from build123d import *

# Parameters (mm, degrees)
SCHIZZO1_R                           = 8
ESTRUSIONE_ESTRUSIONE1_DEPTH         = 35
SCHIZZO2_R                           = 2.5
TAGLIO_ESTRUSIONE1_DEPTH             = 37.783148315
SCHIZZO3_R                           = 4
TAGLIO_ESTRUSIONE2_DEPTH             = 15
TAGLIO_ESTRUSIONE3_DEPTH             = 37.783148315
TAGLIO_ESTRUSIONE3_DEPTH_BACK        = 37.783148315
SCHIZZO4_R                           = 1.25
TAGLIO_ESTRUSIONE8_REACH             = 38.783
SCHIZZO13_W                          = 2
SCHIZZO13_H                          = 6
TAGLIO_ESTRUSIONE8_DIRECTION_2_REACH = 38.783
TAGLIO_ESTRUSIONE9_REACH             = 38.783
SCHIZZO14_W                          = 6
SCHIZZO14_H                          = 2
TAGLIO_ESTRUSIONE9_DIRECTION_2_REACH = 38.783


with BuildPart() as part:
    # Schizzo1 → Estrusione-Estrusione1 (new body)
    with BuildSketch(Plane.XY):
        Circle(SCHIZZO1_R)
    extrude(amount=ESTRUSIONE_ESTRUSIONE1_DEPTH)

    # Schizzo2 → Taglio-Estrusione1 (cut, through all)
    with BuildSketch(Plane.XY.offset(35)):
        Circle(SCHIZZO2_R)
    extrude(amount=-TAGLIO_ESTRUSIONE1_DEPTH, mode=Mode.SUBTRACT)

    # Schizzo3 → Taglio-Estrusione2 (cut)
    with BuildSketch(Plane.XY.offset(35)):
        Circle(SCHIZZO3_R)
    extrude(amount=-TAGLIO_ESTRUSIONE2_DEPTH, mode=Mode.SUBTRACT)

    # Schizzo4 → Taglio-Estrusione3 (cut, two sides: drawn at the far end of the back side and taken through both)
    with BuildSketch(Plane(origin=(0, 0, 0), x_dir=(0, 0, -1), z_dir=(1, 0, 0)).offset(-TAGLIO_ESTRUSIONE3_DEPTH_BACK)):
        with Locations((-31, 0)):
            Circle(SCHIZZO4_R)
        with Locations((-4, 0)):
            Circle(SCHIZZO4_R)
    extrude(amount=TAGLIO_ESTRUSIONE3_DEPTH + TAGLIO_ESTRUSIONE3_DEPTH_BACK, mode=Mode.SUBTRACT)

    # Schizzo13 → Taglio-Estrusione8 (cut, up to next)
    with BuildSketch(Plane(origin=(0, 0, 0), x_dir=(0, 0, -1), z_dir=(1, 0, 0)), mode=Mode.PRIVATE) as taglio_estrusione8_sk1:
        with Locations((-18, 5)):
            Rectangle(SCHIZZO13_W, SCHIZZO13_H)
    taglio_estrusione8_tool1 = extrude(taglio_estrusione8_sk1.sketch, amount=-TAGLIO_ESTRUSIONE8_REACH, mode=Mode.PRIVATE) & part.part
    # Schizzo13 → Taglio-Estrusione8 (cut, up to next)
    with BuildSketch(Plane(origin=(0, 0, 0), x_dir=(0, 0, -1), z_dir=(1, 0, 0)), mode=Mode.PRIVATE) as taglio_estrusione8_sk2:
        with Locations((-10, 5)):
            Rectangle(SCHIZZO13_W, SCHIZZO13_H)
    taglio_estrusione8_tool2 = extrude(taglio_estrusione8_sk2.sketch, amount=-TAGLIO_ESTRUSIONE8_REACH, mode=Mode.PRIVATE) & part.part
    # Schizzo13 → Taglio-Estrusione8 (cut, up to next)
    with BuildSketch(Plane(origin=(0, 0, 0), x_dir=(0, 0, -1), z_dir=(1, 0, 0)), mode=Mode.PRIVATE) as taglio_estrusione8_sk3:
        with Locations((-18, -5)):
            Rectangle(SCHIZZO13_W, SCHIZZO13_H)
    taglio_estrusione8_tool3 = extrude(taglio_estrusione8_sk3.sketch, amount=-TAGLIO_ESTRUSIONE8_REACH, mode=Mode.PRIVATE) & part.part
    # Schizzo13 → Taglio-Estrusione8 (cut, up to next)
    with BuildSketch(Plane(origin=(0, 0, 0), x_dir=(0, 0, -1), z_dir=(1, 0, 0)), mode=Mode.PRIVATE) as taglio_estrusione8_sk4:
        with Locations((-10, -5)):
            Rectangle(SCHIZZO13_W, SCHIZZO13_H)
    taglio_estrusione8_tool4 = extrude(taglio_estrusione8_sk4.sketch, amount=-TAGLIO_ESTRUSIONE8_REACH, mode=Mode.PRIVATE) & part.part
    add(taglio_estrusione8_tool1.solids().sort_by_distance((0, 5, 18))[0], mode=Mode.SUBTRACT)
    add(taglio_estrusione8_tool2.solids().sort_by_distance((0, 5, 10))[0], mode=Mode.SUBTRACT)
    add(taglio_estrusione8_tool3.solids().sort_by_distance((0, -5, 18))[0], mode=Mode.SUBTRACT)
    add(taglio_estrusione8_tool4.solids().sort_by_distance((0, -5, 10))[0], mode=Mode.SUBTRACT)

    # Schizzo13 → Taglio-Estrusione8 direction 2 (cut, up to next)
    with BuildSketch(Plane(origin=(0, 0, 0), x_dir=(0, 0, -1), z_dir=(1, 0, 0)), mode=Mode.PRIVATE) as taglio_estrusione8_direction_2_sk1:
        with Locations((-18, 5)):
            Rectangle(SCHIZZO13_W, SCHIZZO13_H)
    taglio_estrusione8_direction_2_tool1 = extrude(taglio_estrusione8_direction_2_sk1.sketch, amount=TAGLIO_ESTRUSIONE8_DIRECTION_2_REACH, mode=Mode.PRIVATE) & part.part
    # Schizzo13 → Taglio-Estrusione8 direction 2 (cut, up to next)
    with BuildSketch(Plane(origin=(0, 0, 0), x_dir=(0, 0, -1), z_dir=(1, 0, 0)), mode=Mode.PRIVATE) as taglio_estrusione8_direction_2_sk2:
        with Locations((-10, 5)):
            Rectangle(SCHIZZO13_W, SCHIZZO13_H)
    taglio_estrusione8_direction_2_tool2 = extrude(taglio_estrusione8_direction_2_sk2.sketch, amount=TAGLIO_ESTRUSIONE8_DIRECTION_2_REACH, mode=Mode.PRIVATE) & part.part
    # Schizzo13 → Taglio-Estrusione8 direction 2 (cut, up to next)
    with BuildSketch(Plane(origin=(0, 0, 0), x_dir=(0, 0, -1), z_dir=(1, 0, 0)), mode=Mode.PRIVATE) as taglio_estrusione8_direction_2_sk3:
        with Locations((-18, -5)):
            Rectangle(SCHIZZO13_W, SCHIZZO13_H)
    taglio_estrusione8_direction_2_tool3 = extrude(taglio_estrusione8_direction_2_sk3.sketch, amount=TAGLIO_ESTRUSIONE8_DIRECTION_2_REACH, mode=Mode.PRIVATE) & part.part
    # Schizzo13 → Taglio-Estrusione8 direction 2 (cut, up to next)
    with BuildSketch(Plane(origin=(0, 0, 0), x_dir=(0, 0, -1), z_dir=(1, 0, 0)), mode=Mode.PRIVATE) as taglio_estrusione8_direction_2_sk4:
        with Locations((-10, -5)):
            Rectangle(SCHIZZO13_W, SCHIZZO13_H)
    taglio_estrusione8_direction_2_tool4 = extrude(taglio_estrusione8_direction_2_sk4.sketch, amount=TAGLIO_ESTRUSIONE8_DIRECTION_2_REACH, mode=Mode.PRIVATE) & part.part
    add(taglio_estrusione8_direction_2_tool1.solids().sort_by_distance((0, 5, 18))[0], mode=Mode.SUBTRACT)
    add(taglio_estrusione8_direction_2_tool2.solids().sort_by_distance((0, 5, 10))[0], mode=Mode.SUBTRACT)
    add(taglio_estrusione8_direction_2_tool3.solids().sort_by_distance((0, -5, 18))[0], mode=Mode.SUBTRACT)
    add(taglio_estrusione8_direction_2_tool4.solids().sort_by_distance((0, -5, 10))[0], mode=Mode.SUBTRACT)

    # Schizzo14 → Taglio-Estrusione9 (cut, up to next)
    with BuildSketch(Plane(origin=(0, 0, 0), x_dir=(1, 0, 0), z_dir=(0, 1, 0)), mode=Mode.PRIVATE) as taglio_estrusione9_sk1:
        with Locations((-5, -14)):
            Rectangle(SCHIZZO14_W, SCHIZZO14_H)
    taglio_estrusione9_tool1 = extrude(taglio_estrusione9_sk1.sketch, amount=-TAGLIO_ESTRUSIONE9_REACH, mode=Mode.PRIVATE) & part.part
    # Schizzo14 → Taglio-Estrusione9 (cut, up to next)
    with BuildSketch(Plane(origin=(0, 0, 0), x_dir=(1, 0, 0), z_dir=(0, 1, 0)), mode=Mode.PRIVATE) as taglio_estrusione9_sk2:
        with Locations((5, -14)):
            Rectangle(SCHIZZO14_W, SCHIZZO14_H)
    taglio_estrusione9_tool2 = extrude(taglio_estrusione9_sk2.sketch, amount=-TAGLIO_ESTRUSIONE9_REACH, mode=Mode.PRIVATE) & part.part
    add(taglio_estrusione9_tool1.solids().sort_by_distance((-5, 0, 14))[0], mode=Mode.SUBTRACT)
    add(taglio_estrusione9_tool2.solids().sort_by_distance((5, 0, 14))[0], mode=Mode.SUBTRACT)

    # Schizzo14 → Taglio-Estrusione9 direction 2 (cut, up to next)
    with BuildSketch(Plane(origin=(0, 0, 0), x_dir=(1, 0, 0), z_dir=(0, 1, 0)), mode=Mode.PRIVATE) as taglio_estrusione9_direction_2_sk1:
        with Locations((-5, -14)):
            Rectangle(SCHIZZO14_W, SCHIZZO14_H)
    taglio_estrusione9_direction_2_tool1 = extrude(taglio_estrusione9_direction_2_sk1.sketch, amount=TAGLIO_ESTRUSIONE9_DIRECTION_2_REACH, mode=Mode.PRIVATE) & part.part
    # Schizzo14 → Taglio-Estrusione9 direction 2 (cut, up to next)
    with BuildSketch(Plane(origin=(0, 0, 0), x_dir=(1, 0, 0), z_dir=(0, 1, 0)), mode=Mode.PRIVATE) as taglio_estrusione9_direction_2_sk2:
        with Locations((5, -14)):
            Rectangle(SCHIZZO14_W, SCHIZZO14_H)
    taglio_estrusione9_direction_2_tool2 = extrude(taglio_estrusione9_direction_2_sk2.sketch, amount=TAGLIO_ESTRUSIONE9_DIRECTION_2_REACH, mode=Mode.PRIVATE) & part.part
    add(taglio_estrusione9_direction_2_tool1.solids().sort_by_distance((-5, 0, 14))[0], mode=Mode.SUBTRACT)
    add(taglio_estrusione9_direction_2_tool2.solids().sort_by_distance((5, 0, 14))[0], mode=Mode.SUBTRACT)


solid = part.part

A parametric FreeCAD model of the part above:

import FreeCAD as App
import Part
import Sketcher
Q = App.Units.Quantity

doc = App.newDocument("Part")
body = doc.addObject("PartDesign::Body", "Body")

# Sketch on XY plane
sketch1 = body.newObject("Sketcher::SketchObject", "Sketch")
sketch1.AttachmentSupport = (doc.getObject("XY_Plane"), [""])
sketch1.MapMode = "FlatFace"
sketch1.addGeometry(Part.Circle(App.Vector(0, 0, 0), App.Vector(0, 0, 1), 8), False)
sketch1.addConstraint([
    Sketcher.Constraint("Coincident", 0, 3, -1, 1),
    Sketcher.Constraint("Diameter", 0, Q("16 mm")),
])
pad1 = body.newObject("PartDesign::Pad", "Pad")
pad1.Profile = sketch1
pad1.Length = 35

# Sketch on XY plane
sketch2 = body.newObject("Sketcher::SketchObject", "Sketch001")
sketch2.AttachmentSupport = (doc.getObject("XY_Plane"), [""])
sketch2.MapMode = "FlatFace"
sketch2.AttachmentOffset = App.Placement(App.Vector(0, 0, 35), App.Rotation())
sketch2.addGeometry(Part.Circle(App.Vector(0, 0, 0), App.Vector(0, 0, 1), 2.5), False)
sketch2.addConstraint([
    Sketcher.Constraint("Coincident", 0, 3, -1, 1),
    Sketcher.Constraint("Diameter", 0, Q("5 mm")),
])
pocket1 = body.newObject("PartDesign::Pocket", "Pocket")
pocket1.Profile = sketch2
pocket1.Type = "ThroughAll"

# Sketch on XY plane
sketch3 = body.newObject("Sketcher::SketchObject", "Sketch002")
sketch3.AttachmentSupport = (doc.getObject("XY_Plane"), [""])
sketch3.MapMode = "FlatFace"
sketch3.AttachmentOffset = App.Placement(App.Vector(0, 0, 35), App.Rotation())
sketch3.addGeometry(Part.Circle(App.Vector(0, 0, 0), App.Vector(0, 0, 1), 4), False)
sketch3.addConstraint([
    Sketcher.Constraint("Coincident", 0, 3, -1, 1),
    Sketcher.Constraint("Diameter", 0, Q("8 mm")),
])
pocket2 = body.newObject("PartDesign::Pocket", "Pocket001")
pocket2.Profile = sketch3
pocket2.Length = 15

# Sketch on YZ plane
sketch4 = body.newObject("Sketcher::SketchObject", "Sketch003")
sketch4.AttachmentSupport = (doc.getObject("YZ_Plane"), [""])
sketch4.MapMode = "FlatFace"
sketch4.addGeometry([
    Part.Circle(App.Vector(0, 31, 0), App.Vector(0, 0, 1), 1.2),
    Part.Circle(App.Vector(0, 4, 0), App.Vector(0, 0, 1), 1.2),
], False)
sketch4.addConstraint([
    Sketcher.Constraint("Equal", 0, 1),
    Sketcher.Constraint("PointOnObject", 0, 3, -2),
    Sketcher.Constraint("PointOnObject", 1, 3, -2),
    Sketcher.Constraint("Diameter", 0, Q("2.5 mm")),
    Sketcher.Constraint("DistanceY", -1, 1, 0, 3, Q("31 mm")),
    Sketcher.Constraint("DistanceY", -1, 1, 1, 3, Q("4 mm")),
])
pocket3 = body.newObject("PartDesign::Pocket", "Pocket002")
pocket3.Profile = sketch4
pocket3.Type = "ThroughAll"
pocket3.Midplane = True

# Sketch on YZ plane
sketch5 = body.newObject("Sketcher::SketchObject", "Sketch004")
sketch5.AttachmentSupport = (doc.getObject("YZ_Plane"), [""])
sketch5.MapMode = "FlatFace"
sketch5.addGeometry([
    Part.LineSegment(App.Vector(8, 19, 0), App.Vector(2, 19, 0)),
    Part.LineSegment(App.Vector(2, 19, 0), App.Vector(2, 17, 0)),
    Part.LineSegment(App.Vector(2, 17, 0), App.Vector(8, 17, 0)),
    Part.LineSegment(App.Vector(8, 17, 0), App.Vector(8, 19, 0)),
], False)
sketch5.addConstraint([
    Sketcher.Constraint("Coincident", 0, 2, 1, 1),
    Sketcher.Constraint("Coincident", 1, 2, 2, 1),
    Sketcher.Constraint("Coincident", 2, 2, 3, 1),
    Sketcher.Constraint("Coincident", 3, 2, 0, 1),
    Sketcher.Constraint("Horizontal", 0),
    Sketcher.Constraint("Vertical", 1),
    Sketcher.Constraint("Horizontal", 2),
    Sketcher.Constraint("Vertical", 3),
    Sketcher.Constraint("DistanceX", 0, 2, 0, 1, Q("6 mm")),
    Sketcher.Constraint("DistanceY", 1, 2, 1, 1, Q("2 mm")),
    Sketcher.Constraint("DistanceX", -1, 1, 0, 2, Q("2 mm")),
    Sketcher.Constraint("DistanceY", -1, 1, 0, 2, Q("19 mm")),
])
pocket4 = body.newObject("PartDesign::Pocket", "Pocket003")
pocket4.Profile = sketch5
pocket4.Length = 7.745967

# Sketch on YZ plane
sketch6 = body.newObject("Sketcher::SketchObject", "Sketch005")
sketch6.AttachmentSupport = (doc.getObject("YZ_Plane"), [""])
sketch6.MapMode = "FlatFace"
sketch6.addGeometry([
    Part.LineSegment(App.Vector(8, 11, 0), App.Vector(2, 11, 0)),
    Part.LineSegment(App.Vector(2, 11, 0), App.Vector(2, 9, 0)),
    Part.LineSegment(App.Vector(2, 9, 0), App.Vector(8, 9, 0)),
    Part.LineSegment(App.Vector(8, 9, 0), App.Vector(8, 11, 0)),
], False)
sketch6.addConstraint([
    Sketcher.Constraint("Coincident", 0, 2, 1, 1),
    Sketcher.Constraint("Coincident", 1, 2, 2, 1),
    Sketcher.Constraint("Coincident", 2, 2, 3, 1),
    Sketcher.Constraint("Coincident", 3, 2, 0, 1),
    Sketcher.Constraint("Horizontal", 0),
    Sketcher.Constraint("Vertical", 1),
    Sketcher.Constraint("Horizontal", 2),
    Sketcher.Constraint("Vertical", 3),
    Sketcher.Constraint("DistanceX", 0, 2, 0, 1, Q("6 mm")),
    Sketcher.Constraint("DistanceY", 1, 2, 1, 1, Q("2 mm")),
    Sketcher.Constraint("DistanceX", -1, 1, 0, 2, Q("2 mm")),
    Sketcher.Constraint("DistanceY", -1, 1, 0, 2, Q("11 mm")),
])
pocket5 = body.newObject("PartDesign::Pocket", "Pocket004")
pocket5.Profile = sketch6
pocket5.Length = 7.745967

# Sketch on YZ plane
sketch7 = body.newObject("Sketcher::SketchObject", "Sketch006")
sketch7.AttachmentSupport = (doc.getObject("YZ_Plane"), [""])
sketch7.MapMode = "FlatFace"
sketch7.addGeometry([
    Part.LineSegment(App.Vector(-2, 19, 0), App.Vector(-8, 19, 0)),
    Part.LineSegment(App.Vector(-8, 19, 0), App.Vector(-8, 17, 0)),
    Part.LineSegment(App.Vector(-8, 17, 0), App.Vector(-2, 17, 0)),
    Part.LineSegment(App.Vector(-2, 17, 0), App.Vector(-2, 19, 0)),
], False)
sketch7.addConstraint([
    Sketcher.Constraint("Coincident", 0, 2, 1, 1),
    Sketcher.Constraint("Coincident", 1, 2, 2, 1),
    Sketcher.Constraint("Coincident", 2, 2, 3, 1),
    Sketcher.Constraint("Coincident", 3, 2, 0, 1),
    Sketcher.Constraint("Horizontal", 0),
    Sketcher.Constraint("Vertical", 1),
    Sketcher.Constraint("Horizontal", 2),
    Sketcher.Constraint("Vertical", 3),
    Sketcher.Constraint("DistanceX", 0, 2, 0, 1, Q("6 mm")),
    Sketcher.Constraint("DistanceY", 1, 2, 1, 1, Q("2 mm")),
    Sketcher.Constraint("DistanceX", 0, 2, -1, 1, Q("8 mm")),
    Sketcher.Constraint("DistanceY", -1, 1, 0, 2, Q("19 mm")),
])
pocket6 = body.newObject("PartDesign::Pocket", "Pocket005")
pocket6.Profile = sketch7
pocket6.Length = 7.745967

# Sketch on YZ plane
sketch8 = body.newObject("Sketcher::SketchObject", "Sketch007")
sketch8.AttachmentSupport = (doc.getObject("YZ_Plane"), [""])
sketch8.MapMode = "FlatFace"
sketch8.addGeometry([
    Part.LineSegment(App.Vector(-2, 11, 0), App.Vector(-8, 11, 0)),
    Part.LineSegment(App.Vector(-8, 11, 0), App.Vector(-8, 9, 0)),
    Part.LineSegment(App.Vector(-8, 9, 0), App.Vector(-2, 9, 0)),
    Part.LineSegment(App.Vector(-2, 9, 0), App.Vector(-2, 11, 0)),
], False)
sketch8.addConstraint([
    Sketcher.Constraint("Coincident", 0, 2, 1, 1),
    Sketcher.Constraint("Coincident", 1, 2, 2, 1),
    Sketcher.Constraint("Coincident", 2, 2, 3, 1),
    Sketcher.Constraint("Coincident", 3, 2, 0, 1),
    Sketcher.Constraint("Horizontal", 0),
    Sketcher.Constraint("Vertical", 1),
    Sketcher.Constraint("Horizontal", 2),
    Sketcher.Constraint("Vertical", 3),
    Sketcher.Constraint("DistanceX", 0, 2, 0, 1, Q("6 mm")),
    Sketcher.Constraint("DistanceY", 1, 2, 1, 1, Q("2 mm")),
    Sketcher.Constraint("DistanceX", 0, 2, -1, 1, Q("8 mm")),
    Sketcher.Constraint("DistanceY", -1, 1, 0, 2, Q("11 mm")),
])
pocket7 = body.newObject("PartDesign::Pocket", "Pocket006")
pocket7.Profile = sketch8
pocket7.Length = 7.745967

# Sketch on YZ plane
sketch9 = body.newObject("Sketcher::SketchObject", "Sketch008")
sketch9.AttachmentSupport = (doc.getObject("YZ_Plane"), [""])
sketch9.MapMode = "FlatFace"
sketch9.addGeometry([
    Part.LineSegment(App.Vector(8, 19, 0), App.Vector(2, 19, 0)),
    Part.LineSegment(App.Vector(2, 19, 0), App.Vector(2, 17, 0)),
    Part.LineSegment(App.Vector(2, 17, 0), App.Vector(8, 17, 0)),
    Part.LineSegment(App.Vector(8, 17, 0), App.Vector(8, 19, 0)),
], False)
sketch9.addConstraint([
    Sketcher.Constraint("Coincident", 0, 2, 1, 1),
    Sketcher.Constraint("Coincident", 1, 2, 2, 1),
    Sketcher.Constraint("Coincident", 2, 2, 3, 1),
    Sketcher.Constraint("Coincident", 3, 2, 0, 1),
    Sketcher.Constraint("Horizontal", 0),
    Sketcher.Constraint("Vertical", 1),
    Sketcher.Constraint("Horizontal", 2),
    Sketcher.Constraint("Vertical", 3),
    Sketcher.Constraint("DistanceX", 0, 2, 0, 1, Q("6 mm")),
    Sketcher.Constraint("DistanceY", 1, 2, 1, 1, Q("2 mm")),
    Sketcher.Constraint("DistanceX", -1, 1, 0, 2, Q("2 mm")),
    Sketcher.Constraint("DistanceY", -1, 1, 0, 2, Q("19 mm")),
])
pocket8 = body.newObject("PartDesign::Pocket", "Pocket007")
pocket8.Profile = sketch9
pocket8.Length = 7.745967
pocket8.Reversed = True

# Sketch on YZ plane
sketch10 = body.newObject("Sketcher::SketchObject", "Sketch009")
sketch10.AttachmentSupport = (doc.getObject("YZ_Plane"), [""])
sketch10.MapMode = "FlatFace"
sketch10.addGeometry([
    Part.LineSegment(App.Vector(8, 11, 0), App.Vector(2, 11, 0)),
    Part.LineSegment(App.Vector(2, 11, 0), App.Vector(2, 9, 0)),
    Part.LineSegment(App.Vector(2, 9, 0), App.Vector(8, 9, 0)),
    Part.LineSegment(App.Vector(8, 9, 0), App.Vector(8, 11, 0)),
], False)
sketch10.addConstraint([
    Sketcher.Constraint("Coincident", 0, 2, 1, 1),
    Sketcher.Constraint("Coincident", 1, 2, 2, 1),
    Sketcher.Constraint("Coincident", 2, 2, 3, 1),
    Sketcher.Constraint("Coincident", 3, 2, 0, 1),
    Sketcher.Constraint("Horizontal", 0),
    Sketcher.Constraint("Vertical", 1),
    Sketcher.Constraint("Horizontal", 2),
    Sketcher.Constraint("Vertical", 3),
    Sketcher.Constraint("DistanceX", 0, 2, 0, 1, Q("6 mm")),
    Sketcher.Constraint("DistanceY", 1, 2, 1, 1, Q("2 mm")),
    Sketcher.Constraint("DistanceX", -1, 1, 0, 2, Q("2 mm")),
    Sketcher.Constraint("DistanceY", -1, 1, 0, 2, Q("11 mm")),
])
pocket9 = body.newObject("PartDesign::Pocket", "Pocket008")
pocket9.Profile = sketch10
pocket9.Length = 7.745967
pocket9.Reversed = True

# Sketch on YZ plane
sketch11 = body.newObject("Sketcher::SketchObject", "Sketch010")
sketch11.AttachmentSupport = (doc.getObject("YZ_Plane"), [""])
sketch11.MapMode = "FlatFace"
sketch11.addGeometry([
    Part.LineSegment(App.Vector(-2, 19, 0), App.Vector(-8, 19, 0)),
    Part.LineSegment(App.Vector(-8, 19, 0), App.Vector(-8, 17, 0)),
    Part.LineSegment(App.Vector(-8, 17, 0), App.Vector(-2, 17, 0)),
    Part.LineSegment(App.Vector(-2, 17, 0), App.Vector(-2, 19, 0)),
], False)
sketch11.addConstraint([
    Sketcher.Constraint("Coincident", 0, 2, 1, 1),
    Sketcher.Constraint("Coincident", 1, 2, 2, 1),
    Sketcher.Constraint("Coincident", 2, 2, 3, 1),
    Sketcher.Constraint("Coincident", 3, 2, 0, 1),
    Sketcher.Constraint("Horizontal", 0),
    Sketcher.Constraint("Vertical", 1),
    Sketcher.Constraint("Horizontal", 2),
    Sketcher.Constraint("Vertical", 3),
    Sketcher.Constraint("DistanceX", 0, 2, 0, 1, Q("6 mm")),
    Sketcher.Constraint("DistanceY", 1, 2, 1, 1, Q("2 mm")),
    Sketcher.Constraint("DistanceX", 0, 2, -1, 1, Q("8 mm")),
    Sketcher.Constraint("DistanceY", -1, 1, 0, 2, Q("19 mm")),
])
pocket10 = body.newObject("PartDesign::Pocket", "Pocket009")
pocket10.Profile = sketch11
pocket10.Length = 7.745967
pocket10.Reversed = True

# Sketch on YZ plane
sketch12 = body.newObject("Sketcher::SketchObject", "Sketch011")
sketch12.AttachmentSupport = (doc.getObject("YZ_Plane"), [""])
sketch12.MapMode = "FlatFace"
sketch12.addGeometry([
    Part.LineSegment(App.Vector(-2, 11, 0), App.Vector(-8, 11, 0)),
    Part.LineSegment(App.Vector(-8, 11, 0), App.Vector(-8, 9, 0)),
    Part.LineSegment(App.Vector(-8, 9, 0), App.Vector(-2, 9, 0)),
    Part.LineSegment(App.Vector(-2, 9, 0), App.Vector(-2, 11, 0)),
], False)
sketch12.addConstraint([
    Sketcher.Constraint("Coincident", 0, 2, 1, 1),
    Sketcher.Constraint("Coincident", 1, 2, 2, 1),
    Sketcher.Constraint("Coincident", 2, 2, 3, 1),
    Sketcher.Constraint("Coincident", 3, 2, 0, 1),
    Sketcher.Constraint("Horizontal", 0),
    Sketcher.Constraint("Vertical", 1),
    Sketcher.Constraint("Horizontal", 2),
    Sketcher.Constraint("Vertical", 3),
    Sketcher.Constraint("DistanceX", 0, 2, 0, 1, Q("6 mm")),
    Sketcher.Constraint("DistanceY", 1, 2, 1, 1, Q("2 mm")),
    Sketcher.Constraint("DistanceX", 0, 2, -1, 1, Q("8 mm")),
    Sketcher.Constraint("DistanceY", -1, 1, 0, 2, Q("11 mm")),
])
pocket11 = body.newObject("PartDesign::Pocket", "Pocket010")
pocket11.Profile = sketch12
pocket11.Length = 7.745967
pocket11.Reversed = True

# Sketch on XZ plane
sketch13 = body.newObject("Sketcher::SketchObject", "Sketch012")
sketch13.AttachmentSupport = (doc.getObject("XZ_Plane"), [""])
sketch13.MapMode = "FlatFace"
sketch13.addGeometry([
    Part.LineSegment(App.Vector(-8, 13, 0), App.Vector(-8, 15, 0)),
    Part.LineSegment(App.Vector(-8, 15, 0), App.Vector(-2, 15, 0)),
    Part.LineSegment(App.Vector(-2, 15, 0), App.Vector(-2, 13, 0)),
    Part.LineSegment(App.Vector(-2, 13, 0), App.Vector(-8, 13, 0)),
], False)
sketch13.addConstraint([
    Sketcher.Constraint("Coincident", 0, 2, 1, 1),
    Sketcher.Constraint("Coincident", 1, 2, 2, 1),
    Sketcher.Constraint("Coincident", 2, 2, 3, 1),
    Sketcher.Constraint("Coincident", 3, 2, 0, 1),
    Sketcher.Constraint("Vertical", 0),
    Sketcher.Constraint("Horizontal", 1),
    Sketcher.Constraint("Vertical", 2),
    Sketcher.Constraint("Horizontal", 3),
    Sketcher.Constraint("DistanceX", 1, 1, 1, 2, Q("6 mm")),
    Sketcher.Constraint("DistanceY", 0, 1, 0, 2, Q("2 mm")),
    Sketcher.Constraint("DistanceX", 0, 2, -1, 1, Q("8 mm")),
    Sketcher.Constraint("DistanceY", -1, 1, 0, 2, Q("15 mm")),
])
pocket12 = body.newObject("PartDesign::Pocket", "Pocket011")
pocket12.Profile = sketch13
pocket12.Length = 7.745967
pocket12.Reversed = True

# Sketch on XZ plane
sketch14 = body.newObject("Sketcher::SketchObject", "Sketch013")
sketch14.AttachmentSupport = (doc.getObject("XZ_Plane"), [""])
sketch14.MapMode = "FlatFace"
sketch14.addGeometry([
    Part.LineSegment(App.Vector(2, 13, 0), App.Vector(2, 15, 0)),
    Part.LineSegment(App.Vector(2, 15, 0), App.Vector(8, 15, 0)),
    Part.LineSegment(App.Vector(8, 15, 0), App.Vector(8, 13, 0)),
    Part.LineSegment(App.Vector(8, 13, 0), App.Vector(2, 13, 0)),
], False)
sketch14.addConstraint([
    Sketcher.Constraint("Coincident", 0, 2, 1, 1),
    Sketcher.Constraint("Coincident", 1, 2, 2, 1),
    Sketcher.Constraint("Coincident", 2, 2, 3, 1),
    Sketcher.Constraint("Coincident", 3, 2, 0, 1),
    Sketcher.Constraint("Vertical", 0),
    Sketcher.Constraint("Horizontal", 1),
    Sketcher.Constraint("Vertical", 2),
    Sketcher.Constraint("Horizontal", 3),
    Sketcher.Constraint("DistanceX", 1, 1, 1, 2, Q("6 mm")),
    Sketcher.Constraint("DistanceY", 0, 1, 0, 2, Q("2 mm")),
    Sketcher.Constraint("DistanceX", -1, 1, 0, 2, Q("2 mm")),
    Sketcher.Constraint("DistanceY", -1, 1, 0, 2, Q("15 mm")),
])
pocket13 = body.newObject("PartDesign::Pocket", "Pocket012")
pocket13.Profile = sketch14
pocket13.Length = 7.745967
pocket13.Reversed = True

# Sketch on XZ plane
sketch15 = body.newObject("Sketcher::SketchObject", "Sketch014")
sketch15.AttachmentSupport = (doc.getObject("XZ_Plane"), [""])
sketch15.MapMode = "FlatFace"
sketch15.addGeometry([
    Part.LineSegment(App.Vector(-8, 13, 0), App.Vector(-8, 15, 0)),
    Part.LineSegment(App.Vector(-8, 15, 0), App.Vector(-2, 15, 0)),
    Part.LineSegment(App.Vector(-2, 15, 0), App.Vector(-2, 13, 0)),
    Part.LineSegment(App.Vector(-2, 13, 0), App.Vector(-8, 13, 0)),
], False)
sketch15.addConstraint([
    Sketcher.Constraint("Coincident", 0, 2, 1, 1),
    Sketcher.Constraint("Coincident", 1, 2, 2, 1),
    Sketcher.Constraint("Coincident", 2, 2, 3, 1),
    Sketcher.Constraint("Coincident", 3, 2, 0, 1),
    Sketcher.Constraint("Vertical", 0),
    Sketcher.Constraint("Horizontal", 1),
    Sketcher.Constraint("Vertical", 2),
    Sketcher.Constraint("Horizontal", 3),
    Sketcher.Constraint("DistanceX", 1, 1, 1, 2, Q("6 mm")),
    Sketcher.Constraint("DistanceY", 0, 1, 0, 2, Q("2 mm")),
    Sketcher.Constraint("DistanceX", 0, 2, -1, 1, Q("8 mm")),
    Sketcher.Constraint("DistanceY", -1, 1, 0, 2, Q("15 mm")),
])
pocket14 = body.newObject("PartDesign::Pocket", "Pocket013")
pocket14.Profile = sketch15
pocket14.Length = 7.745967

# Sketch on XZ plane
sketch16 = body.newObject("Sketcher::SketchObject", "Sketch015")
sketch16.AttachmentSupport = (doc.getObject("XZ_Plane"), [""])
sketch16.MapMode = "FlatFace"
sketch16.addGeometry([
    Part.LineSegment(App.Vector(2, 13, 0), App.Vector(2, 15, 0)),
    Part.LineSegment(App.Vector(2, 15, 0), App.Vector(8, 15, 0)),
    Part.LineSegment(App.Vector(8, 15, 0), App.Vector(8, 13, 0)),
    Part.LineSegment(App.Vector(8, 13, 0), App.Vector(2, 13, 0)),
], False)
sketch16.addConstraint([
    Sketcher.Constraint("Coincident", 0, 2, 1, 1),
    Sketcher.Constraint("Coincident", 1, 2, 2, 1),
    Sketcher.Constraint("Coincident", 2, 2, 3, 1),
    Sketcher.Constraint("Coincident", 3, 2, 0, 1),
    Sketcher.Constraint("Vertical", 0),
    Sketcher.Constraint("Horizontal", 1),
    Sketcher.Constraint("Vertical", 2),
    Sketcher.Constraint("Horizontal", 3),
    Sketcher.Constraint("DistanceX", 1, 1, 1, 2, Q("6 mm")),
    Sketcher.Constraint("DistanceY", 0, 1, 0, 2, Q("2 mm")),
    Sketcher.Constraint("DistanceX", -1, 1, 0, 2, Q("2 mm")),
    Sketcher.Constraint("DistanceY", -1, 1, 0, 2, Q("15 mm")),
])
pocket15 = body.newObject("PartDesign::Pocket", "Pocket014")
pocket15.Profile = sketch16
pocket15.Length = 7.745967

doc.recompute()
